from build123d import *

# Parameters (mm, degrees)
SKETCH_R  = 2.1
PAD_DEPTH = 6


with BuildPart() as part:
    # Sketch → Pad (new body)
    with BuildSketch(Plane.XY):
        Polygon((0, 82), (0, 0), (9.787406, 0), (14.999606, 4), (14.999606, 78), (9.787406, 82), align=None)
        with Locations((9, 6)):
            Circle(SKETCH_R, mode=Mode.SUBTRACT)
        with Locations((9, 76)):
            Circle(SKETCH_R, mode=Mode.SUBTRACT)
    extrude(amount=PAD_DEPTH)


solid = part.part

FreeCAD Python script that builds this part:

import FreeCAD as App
import Part
import Sketcher
from FreeCAD import Vector
Q = App.Units.Quantity


def add_polygon(sketch, points):
    """Adds a closed chain of lines whose ends are joined by coincident constraints."""
    first, n = sketch.GeometryCount, len(points)
    for a, b in zip(points, points[1:] + points[:1]):
        sketch.addGeometry(Part.LineSegment(App.Vector(*a, 0), App.Vector(*b, 0)), False)
    for i in range(n):
        sketch.addConstraint(Sketcher.Constraint("Coincident", first + i, 2, first + (i + 1) % n, 1))

doc = App.newDocument("Part")
body = doc.addObject("PartDesign::Body", "Body")

# Sketch on XY plane
sketch1 = doc.addObject("Sketcher::SketchObject", "Sketch")
body.addObject(sketch1)
sketch1.AttachmentSupport = (doc.XY_Plane, [""])
sketch1.MapMode = "FlatFace"
add_polygon(sketch1, [(0, 82), (0, 0), (9.8, 0), (15, 4), (15, 78), (9.8, 82)])  # lines 0-5
sketch1.addGeometry(Part.Circle(Vector(9, 6, 0), Vector(0, 0, 1), 2.1), False)  # 6
sketch1.addGeometry(Part.Circle(Vector(9, 76, 0), Vector(0, 0, 1), 2.1), False)  # 7
sketch1.addConstraint([
    Sketcher.Constraint("Vertical", 0),
    Sketcher.Constraint("Horizontal", 1),
    Sketcher.Constraint("Vertical", 3),
    Sketcher.Constraint("Horizontal", 5),
    Sketcher.Constraint("Coincident", 0, 2, -1, 1),
    Sketcher.Constraint("Equal", 6, 7),
    Sketcher.Constraint("Vertical", 6, 3, 7, 3),
    Sketcher.Constraint("Vertical", 1, 2, 4, 2),
    Sketcher.Constraint("Equal", 2, 4),
    Sketcher.Constraint("Diameter", 6, Q("4.2 mm")),
    Sketcher.Constraint("DistanceY", 0, 2, 0, 1, Q("82 mm")),
    Sketcher.Constraint("DistanceY", 3, 1, 3, 2, Q("74 mm")),
    Sketcher.Constraint("DistanceX", -1, 1, 6, 3, Q("9 mm")),
    Sketcher.Constraint("DistanceY", -1, 1, 6, 3, Q("6 mm")),
    Sketcher.Constraint("DistanceY", -1, 1, 7, 3, Q("76 mm")),
    Sketcher.Constraint("DistanceX", 1, 2, 2, 2, Q("5.2122 mm")),
    Sketcher.Constraint("DistanceX", 1, 1, 1, 2, Q("9.787406 mm")),
])
pad1 = doc.addObject("PartDesign::Pad", "Pad")
body.addObject(pad1)
pad1.Profile = sketch1
pad1.Length = 6

doc.recompute()
